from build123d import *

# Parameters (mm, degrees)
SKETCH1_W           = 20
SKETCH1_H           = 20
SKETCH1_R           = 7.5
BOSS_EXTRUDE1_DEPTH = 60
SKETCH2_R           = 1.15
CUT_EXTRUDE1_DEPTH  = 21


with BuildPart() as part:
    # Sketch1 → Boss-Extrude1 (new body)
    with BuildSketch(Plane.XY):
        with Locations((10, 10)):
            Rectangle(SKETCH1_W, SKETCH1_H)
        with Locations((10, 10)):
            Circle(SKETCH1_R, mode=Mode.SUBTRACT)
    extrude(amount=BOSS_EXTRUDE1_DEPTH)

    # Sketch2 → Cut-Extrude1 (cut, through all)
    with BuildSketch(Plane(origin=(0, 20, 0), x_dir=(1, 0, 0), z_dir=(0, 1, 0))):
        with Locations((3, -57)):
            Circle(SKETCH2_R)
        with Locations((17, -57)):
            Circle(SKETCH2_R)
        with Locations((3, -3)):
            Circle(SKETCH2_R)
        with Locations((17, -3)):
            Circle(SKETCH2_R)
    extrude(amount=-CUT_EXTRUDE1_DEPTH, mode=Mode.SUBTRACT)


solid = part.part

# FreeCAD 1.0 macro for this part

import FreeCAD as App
import Part
import Sketcher
from FreeCAD import Vector
Q = App.Units.Quantity


def add_polygon(sketch, points):
    """Adds a closed chain of lines whose ends are joined by coincident constraints."""
    first, n = sketch.GeometryCount, len(points)
    for a, b in zip(points, points[1:] + points[:1]):
        sketch.addGeometry(Part.LineSegment(App.Vector(*a, 0), App.Vector(*b, 0)), False)
    for i in range(n):
        sketch.addConstraint(Sketcher.Constraint("Coincident", first + i, 2, first + (i + 1) % n, 1))

doc = App.newDocument("Part")
body = doc.addObject("PartDesign::Body", "Body")

# Sketch on XY plane
sketch1 = body.newObject("Sketcher::SketchObject", "Sketch")
sketch1.AttachmentSupport = (doc.getObject("XY_Plane"), [""])
sketch1.MapMode = "FlatFace"
add_polygon(sketch1, [(0, 20), (0, 0), (20, 0), (20, 20)])  # lines 0-3
sketch1.addGeometry(Part.Circle(Vector(10, 10, 0), Vector(0, 0, 1), 8), False)  # 4
sketch1.addConstraint([
    Sketcher.Constraint("Vertical", 0),
    Sketcher.Constraint("Horizontal", 1),
    Sketcher.Constraint("Vertical", 2),
    Sketcher.Constraint("Horizontal", 3),
    Sketcher.Constraint("Coincident", 0, 2, -1, 1),
    Sketcher.Constraint("Equal", 3, 0),
    Sketcher.Constraint("Diameter", 4, Q("15 mm")),
    Sketcher.Constraint("DistanceX", 1, 1, 1, 2, Q("20 mm")),
    Sketcher.Constraint("DistanceX", -1, 1, 4, 3, Q("10 mm")),
    Sketcher.Constraint("DistanceY", -1, 1, 4, 3, Q("10 mm")),
])
pad1 = body.newObject("PartDesign::Pad", "Pad")
pad1.Profile = sketch1
pad1.Length = 60

# Sketch on XZ plane
sketch2 = body.newObject("Sketcher::SketchObject", "Sketch001")
sketch2.AttachmentSupport = (doc.getObject("XZ_Plane"), [""])
sketch2.MapMode = "FlatFace"
sketch2.AttachmentOffset = App.Placement(Vector(0, 0, -20), App.Rotation())
sketch2.addGeometry([
    Part.Circle(Vector(3, 57, 0), Vector(0, 0, 1), 1.1),
    Part.Circle(Vector(17, 57, 0), Vector(0, 0, 1), 1.1),
    Part.Circle(Vector(3, 3, 0), Vector(0, 0, 1), 1.1),
    Part.Circle(Vector(17, 3, 0), Vector(0, 0, 1), 1.1),
], False)
sketch2.addConstraint([
    Sketcher.Constraint("Equal", 0, 1),
    Sketcher.Constraint("Equal", 1, 2),
    Sketcher.Constraint("Equal", 2, 3),
    Sketcher.Constraint("Horizontal", 0, 3, 1, 3),
    Sketcher.Constraint("Horizontal", 2, 3, 3, 3),
    Sketcher.Constraint("Vertical", 0, 3, 2, 3),
    Sketcher.Constraint("Vertical", 1, 3, 3, 3),
    Sketcher.Constraint("Diameter", 0, Q("2.3 mm")),
    Sketcher.Constraint("DistanceX", -1, 1, 0, 3, Q("3 mm")),
    Sketcher.Constraint("DistanceY", -1, 1, 0, 3, Q("57 mm")),
    Sketcher.Constraint("DistanceX", -1, 1, 1, 3, Q("17 mm")),
    Sketcher.Constraint("DistanceY", -1, 1, 2, 3, Q("3 mm")),
])
pocket1 = body.newObject("PartDesign::Pocket", "Pocket")
pocket1.Profile = sketch2
pocket1.Type = "ThroughAll"
pocket1.Reversed = True

doc.recompute()
